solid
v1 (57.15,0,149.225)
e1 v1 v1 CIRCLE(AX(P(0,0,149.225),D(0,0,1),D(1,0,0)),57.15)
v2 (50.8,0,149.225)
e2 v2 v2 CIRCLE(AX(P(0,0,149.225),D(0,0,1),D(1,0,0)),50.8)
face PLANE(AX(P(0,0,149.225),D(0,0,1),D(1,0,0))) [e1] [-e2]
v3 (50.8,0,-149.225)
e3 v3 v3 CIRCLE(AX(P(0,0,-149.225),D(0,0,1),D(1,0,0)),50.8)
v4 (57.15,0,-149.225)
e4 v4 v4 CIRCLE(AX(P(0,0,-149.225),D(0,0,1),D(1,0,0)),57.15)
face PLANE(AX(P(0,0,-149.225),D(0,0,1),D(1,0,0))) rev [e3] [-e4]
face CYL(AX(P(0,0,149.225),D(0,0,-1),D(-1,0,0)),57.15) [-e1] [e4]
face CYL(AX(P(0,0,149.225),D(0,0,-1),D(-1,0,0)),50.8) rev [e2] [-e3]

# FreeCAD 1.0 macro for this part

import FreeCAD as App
import Part
import Sketcher
Q = App.Units.Quantity

doc = App.newDocument("Part")
body = doc.addObject("PartDesign::Body", "Body")

# Sketch on XY plane
sketch1 = body.newObject("Sketcher::SketchObject", "Sketch")
sketch1.AttachmentSupport = (doc.getObject("XY_Plane"), [""])
sketch1.MapMode = "FlatFace"
sketch1.addGeometry(Part.Circle(App.Vector(0, 0, 0), App.Vector(0, 0, 1), 57.15), False)
sketch1.addGeometry(Part.Circle(App.Vector(0, 0, 0), App.Vector(0, 0, 1), 50.8), False)
sketch1.addConstraint(Sketcher.Constraint("Coincident", 0, 3, -1, 1))
sketch1.addConstraint(Sketcher.Constraint("Coincident", 1, 3, -1, 1))
sketch1.addConstraint(Sketcher.Constraint("Diameter", 1, Q("4 in")))
sketch1.addConstraint(Sketcher.Constraint("Diameter", 0, Q("4.5 in")))
pad1 = body.newObject("PartDesign::Pad", "Pad")
pad1.Profile = sketch1
pad1.Length = Q("11.75 in")
pad1.Midplane = True

doc.recompute()
